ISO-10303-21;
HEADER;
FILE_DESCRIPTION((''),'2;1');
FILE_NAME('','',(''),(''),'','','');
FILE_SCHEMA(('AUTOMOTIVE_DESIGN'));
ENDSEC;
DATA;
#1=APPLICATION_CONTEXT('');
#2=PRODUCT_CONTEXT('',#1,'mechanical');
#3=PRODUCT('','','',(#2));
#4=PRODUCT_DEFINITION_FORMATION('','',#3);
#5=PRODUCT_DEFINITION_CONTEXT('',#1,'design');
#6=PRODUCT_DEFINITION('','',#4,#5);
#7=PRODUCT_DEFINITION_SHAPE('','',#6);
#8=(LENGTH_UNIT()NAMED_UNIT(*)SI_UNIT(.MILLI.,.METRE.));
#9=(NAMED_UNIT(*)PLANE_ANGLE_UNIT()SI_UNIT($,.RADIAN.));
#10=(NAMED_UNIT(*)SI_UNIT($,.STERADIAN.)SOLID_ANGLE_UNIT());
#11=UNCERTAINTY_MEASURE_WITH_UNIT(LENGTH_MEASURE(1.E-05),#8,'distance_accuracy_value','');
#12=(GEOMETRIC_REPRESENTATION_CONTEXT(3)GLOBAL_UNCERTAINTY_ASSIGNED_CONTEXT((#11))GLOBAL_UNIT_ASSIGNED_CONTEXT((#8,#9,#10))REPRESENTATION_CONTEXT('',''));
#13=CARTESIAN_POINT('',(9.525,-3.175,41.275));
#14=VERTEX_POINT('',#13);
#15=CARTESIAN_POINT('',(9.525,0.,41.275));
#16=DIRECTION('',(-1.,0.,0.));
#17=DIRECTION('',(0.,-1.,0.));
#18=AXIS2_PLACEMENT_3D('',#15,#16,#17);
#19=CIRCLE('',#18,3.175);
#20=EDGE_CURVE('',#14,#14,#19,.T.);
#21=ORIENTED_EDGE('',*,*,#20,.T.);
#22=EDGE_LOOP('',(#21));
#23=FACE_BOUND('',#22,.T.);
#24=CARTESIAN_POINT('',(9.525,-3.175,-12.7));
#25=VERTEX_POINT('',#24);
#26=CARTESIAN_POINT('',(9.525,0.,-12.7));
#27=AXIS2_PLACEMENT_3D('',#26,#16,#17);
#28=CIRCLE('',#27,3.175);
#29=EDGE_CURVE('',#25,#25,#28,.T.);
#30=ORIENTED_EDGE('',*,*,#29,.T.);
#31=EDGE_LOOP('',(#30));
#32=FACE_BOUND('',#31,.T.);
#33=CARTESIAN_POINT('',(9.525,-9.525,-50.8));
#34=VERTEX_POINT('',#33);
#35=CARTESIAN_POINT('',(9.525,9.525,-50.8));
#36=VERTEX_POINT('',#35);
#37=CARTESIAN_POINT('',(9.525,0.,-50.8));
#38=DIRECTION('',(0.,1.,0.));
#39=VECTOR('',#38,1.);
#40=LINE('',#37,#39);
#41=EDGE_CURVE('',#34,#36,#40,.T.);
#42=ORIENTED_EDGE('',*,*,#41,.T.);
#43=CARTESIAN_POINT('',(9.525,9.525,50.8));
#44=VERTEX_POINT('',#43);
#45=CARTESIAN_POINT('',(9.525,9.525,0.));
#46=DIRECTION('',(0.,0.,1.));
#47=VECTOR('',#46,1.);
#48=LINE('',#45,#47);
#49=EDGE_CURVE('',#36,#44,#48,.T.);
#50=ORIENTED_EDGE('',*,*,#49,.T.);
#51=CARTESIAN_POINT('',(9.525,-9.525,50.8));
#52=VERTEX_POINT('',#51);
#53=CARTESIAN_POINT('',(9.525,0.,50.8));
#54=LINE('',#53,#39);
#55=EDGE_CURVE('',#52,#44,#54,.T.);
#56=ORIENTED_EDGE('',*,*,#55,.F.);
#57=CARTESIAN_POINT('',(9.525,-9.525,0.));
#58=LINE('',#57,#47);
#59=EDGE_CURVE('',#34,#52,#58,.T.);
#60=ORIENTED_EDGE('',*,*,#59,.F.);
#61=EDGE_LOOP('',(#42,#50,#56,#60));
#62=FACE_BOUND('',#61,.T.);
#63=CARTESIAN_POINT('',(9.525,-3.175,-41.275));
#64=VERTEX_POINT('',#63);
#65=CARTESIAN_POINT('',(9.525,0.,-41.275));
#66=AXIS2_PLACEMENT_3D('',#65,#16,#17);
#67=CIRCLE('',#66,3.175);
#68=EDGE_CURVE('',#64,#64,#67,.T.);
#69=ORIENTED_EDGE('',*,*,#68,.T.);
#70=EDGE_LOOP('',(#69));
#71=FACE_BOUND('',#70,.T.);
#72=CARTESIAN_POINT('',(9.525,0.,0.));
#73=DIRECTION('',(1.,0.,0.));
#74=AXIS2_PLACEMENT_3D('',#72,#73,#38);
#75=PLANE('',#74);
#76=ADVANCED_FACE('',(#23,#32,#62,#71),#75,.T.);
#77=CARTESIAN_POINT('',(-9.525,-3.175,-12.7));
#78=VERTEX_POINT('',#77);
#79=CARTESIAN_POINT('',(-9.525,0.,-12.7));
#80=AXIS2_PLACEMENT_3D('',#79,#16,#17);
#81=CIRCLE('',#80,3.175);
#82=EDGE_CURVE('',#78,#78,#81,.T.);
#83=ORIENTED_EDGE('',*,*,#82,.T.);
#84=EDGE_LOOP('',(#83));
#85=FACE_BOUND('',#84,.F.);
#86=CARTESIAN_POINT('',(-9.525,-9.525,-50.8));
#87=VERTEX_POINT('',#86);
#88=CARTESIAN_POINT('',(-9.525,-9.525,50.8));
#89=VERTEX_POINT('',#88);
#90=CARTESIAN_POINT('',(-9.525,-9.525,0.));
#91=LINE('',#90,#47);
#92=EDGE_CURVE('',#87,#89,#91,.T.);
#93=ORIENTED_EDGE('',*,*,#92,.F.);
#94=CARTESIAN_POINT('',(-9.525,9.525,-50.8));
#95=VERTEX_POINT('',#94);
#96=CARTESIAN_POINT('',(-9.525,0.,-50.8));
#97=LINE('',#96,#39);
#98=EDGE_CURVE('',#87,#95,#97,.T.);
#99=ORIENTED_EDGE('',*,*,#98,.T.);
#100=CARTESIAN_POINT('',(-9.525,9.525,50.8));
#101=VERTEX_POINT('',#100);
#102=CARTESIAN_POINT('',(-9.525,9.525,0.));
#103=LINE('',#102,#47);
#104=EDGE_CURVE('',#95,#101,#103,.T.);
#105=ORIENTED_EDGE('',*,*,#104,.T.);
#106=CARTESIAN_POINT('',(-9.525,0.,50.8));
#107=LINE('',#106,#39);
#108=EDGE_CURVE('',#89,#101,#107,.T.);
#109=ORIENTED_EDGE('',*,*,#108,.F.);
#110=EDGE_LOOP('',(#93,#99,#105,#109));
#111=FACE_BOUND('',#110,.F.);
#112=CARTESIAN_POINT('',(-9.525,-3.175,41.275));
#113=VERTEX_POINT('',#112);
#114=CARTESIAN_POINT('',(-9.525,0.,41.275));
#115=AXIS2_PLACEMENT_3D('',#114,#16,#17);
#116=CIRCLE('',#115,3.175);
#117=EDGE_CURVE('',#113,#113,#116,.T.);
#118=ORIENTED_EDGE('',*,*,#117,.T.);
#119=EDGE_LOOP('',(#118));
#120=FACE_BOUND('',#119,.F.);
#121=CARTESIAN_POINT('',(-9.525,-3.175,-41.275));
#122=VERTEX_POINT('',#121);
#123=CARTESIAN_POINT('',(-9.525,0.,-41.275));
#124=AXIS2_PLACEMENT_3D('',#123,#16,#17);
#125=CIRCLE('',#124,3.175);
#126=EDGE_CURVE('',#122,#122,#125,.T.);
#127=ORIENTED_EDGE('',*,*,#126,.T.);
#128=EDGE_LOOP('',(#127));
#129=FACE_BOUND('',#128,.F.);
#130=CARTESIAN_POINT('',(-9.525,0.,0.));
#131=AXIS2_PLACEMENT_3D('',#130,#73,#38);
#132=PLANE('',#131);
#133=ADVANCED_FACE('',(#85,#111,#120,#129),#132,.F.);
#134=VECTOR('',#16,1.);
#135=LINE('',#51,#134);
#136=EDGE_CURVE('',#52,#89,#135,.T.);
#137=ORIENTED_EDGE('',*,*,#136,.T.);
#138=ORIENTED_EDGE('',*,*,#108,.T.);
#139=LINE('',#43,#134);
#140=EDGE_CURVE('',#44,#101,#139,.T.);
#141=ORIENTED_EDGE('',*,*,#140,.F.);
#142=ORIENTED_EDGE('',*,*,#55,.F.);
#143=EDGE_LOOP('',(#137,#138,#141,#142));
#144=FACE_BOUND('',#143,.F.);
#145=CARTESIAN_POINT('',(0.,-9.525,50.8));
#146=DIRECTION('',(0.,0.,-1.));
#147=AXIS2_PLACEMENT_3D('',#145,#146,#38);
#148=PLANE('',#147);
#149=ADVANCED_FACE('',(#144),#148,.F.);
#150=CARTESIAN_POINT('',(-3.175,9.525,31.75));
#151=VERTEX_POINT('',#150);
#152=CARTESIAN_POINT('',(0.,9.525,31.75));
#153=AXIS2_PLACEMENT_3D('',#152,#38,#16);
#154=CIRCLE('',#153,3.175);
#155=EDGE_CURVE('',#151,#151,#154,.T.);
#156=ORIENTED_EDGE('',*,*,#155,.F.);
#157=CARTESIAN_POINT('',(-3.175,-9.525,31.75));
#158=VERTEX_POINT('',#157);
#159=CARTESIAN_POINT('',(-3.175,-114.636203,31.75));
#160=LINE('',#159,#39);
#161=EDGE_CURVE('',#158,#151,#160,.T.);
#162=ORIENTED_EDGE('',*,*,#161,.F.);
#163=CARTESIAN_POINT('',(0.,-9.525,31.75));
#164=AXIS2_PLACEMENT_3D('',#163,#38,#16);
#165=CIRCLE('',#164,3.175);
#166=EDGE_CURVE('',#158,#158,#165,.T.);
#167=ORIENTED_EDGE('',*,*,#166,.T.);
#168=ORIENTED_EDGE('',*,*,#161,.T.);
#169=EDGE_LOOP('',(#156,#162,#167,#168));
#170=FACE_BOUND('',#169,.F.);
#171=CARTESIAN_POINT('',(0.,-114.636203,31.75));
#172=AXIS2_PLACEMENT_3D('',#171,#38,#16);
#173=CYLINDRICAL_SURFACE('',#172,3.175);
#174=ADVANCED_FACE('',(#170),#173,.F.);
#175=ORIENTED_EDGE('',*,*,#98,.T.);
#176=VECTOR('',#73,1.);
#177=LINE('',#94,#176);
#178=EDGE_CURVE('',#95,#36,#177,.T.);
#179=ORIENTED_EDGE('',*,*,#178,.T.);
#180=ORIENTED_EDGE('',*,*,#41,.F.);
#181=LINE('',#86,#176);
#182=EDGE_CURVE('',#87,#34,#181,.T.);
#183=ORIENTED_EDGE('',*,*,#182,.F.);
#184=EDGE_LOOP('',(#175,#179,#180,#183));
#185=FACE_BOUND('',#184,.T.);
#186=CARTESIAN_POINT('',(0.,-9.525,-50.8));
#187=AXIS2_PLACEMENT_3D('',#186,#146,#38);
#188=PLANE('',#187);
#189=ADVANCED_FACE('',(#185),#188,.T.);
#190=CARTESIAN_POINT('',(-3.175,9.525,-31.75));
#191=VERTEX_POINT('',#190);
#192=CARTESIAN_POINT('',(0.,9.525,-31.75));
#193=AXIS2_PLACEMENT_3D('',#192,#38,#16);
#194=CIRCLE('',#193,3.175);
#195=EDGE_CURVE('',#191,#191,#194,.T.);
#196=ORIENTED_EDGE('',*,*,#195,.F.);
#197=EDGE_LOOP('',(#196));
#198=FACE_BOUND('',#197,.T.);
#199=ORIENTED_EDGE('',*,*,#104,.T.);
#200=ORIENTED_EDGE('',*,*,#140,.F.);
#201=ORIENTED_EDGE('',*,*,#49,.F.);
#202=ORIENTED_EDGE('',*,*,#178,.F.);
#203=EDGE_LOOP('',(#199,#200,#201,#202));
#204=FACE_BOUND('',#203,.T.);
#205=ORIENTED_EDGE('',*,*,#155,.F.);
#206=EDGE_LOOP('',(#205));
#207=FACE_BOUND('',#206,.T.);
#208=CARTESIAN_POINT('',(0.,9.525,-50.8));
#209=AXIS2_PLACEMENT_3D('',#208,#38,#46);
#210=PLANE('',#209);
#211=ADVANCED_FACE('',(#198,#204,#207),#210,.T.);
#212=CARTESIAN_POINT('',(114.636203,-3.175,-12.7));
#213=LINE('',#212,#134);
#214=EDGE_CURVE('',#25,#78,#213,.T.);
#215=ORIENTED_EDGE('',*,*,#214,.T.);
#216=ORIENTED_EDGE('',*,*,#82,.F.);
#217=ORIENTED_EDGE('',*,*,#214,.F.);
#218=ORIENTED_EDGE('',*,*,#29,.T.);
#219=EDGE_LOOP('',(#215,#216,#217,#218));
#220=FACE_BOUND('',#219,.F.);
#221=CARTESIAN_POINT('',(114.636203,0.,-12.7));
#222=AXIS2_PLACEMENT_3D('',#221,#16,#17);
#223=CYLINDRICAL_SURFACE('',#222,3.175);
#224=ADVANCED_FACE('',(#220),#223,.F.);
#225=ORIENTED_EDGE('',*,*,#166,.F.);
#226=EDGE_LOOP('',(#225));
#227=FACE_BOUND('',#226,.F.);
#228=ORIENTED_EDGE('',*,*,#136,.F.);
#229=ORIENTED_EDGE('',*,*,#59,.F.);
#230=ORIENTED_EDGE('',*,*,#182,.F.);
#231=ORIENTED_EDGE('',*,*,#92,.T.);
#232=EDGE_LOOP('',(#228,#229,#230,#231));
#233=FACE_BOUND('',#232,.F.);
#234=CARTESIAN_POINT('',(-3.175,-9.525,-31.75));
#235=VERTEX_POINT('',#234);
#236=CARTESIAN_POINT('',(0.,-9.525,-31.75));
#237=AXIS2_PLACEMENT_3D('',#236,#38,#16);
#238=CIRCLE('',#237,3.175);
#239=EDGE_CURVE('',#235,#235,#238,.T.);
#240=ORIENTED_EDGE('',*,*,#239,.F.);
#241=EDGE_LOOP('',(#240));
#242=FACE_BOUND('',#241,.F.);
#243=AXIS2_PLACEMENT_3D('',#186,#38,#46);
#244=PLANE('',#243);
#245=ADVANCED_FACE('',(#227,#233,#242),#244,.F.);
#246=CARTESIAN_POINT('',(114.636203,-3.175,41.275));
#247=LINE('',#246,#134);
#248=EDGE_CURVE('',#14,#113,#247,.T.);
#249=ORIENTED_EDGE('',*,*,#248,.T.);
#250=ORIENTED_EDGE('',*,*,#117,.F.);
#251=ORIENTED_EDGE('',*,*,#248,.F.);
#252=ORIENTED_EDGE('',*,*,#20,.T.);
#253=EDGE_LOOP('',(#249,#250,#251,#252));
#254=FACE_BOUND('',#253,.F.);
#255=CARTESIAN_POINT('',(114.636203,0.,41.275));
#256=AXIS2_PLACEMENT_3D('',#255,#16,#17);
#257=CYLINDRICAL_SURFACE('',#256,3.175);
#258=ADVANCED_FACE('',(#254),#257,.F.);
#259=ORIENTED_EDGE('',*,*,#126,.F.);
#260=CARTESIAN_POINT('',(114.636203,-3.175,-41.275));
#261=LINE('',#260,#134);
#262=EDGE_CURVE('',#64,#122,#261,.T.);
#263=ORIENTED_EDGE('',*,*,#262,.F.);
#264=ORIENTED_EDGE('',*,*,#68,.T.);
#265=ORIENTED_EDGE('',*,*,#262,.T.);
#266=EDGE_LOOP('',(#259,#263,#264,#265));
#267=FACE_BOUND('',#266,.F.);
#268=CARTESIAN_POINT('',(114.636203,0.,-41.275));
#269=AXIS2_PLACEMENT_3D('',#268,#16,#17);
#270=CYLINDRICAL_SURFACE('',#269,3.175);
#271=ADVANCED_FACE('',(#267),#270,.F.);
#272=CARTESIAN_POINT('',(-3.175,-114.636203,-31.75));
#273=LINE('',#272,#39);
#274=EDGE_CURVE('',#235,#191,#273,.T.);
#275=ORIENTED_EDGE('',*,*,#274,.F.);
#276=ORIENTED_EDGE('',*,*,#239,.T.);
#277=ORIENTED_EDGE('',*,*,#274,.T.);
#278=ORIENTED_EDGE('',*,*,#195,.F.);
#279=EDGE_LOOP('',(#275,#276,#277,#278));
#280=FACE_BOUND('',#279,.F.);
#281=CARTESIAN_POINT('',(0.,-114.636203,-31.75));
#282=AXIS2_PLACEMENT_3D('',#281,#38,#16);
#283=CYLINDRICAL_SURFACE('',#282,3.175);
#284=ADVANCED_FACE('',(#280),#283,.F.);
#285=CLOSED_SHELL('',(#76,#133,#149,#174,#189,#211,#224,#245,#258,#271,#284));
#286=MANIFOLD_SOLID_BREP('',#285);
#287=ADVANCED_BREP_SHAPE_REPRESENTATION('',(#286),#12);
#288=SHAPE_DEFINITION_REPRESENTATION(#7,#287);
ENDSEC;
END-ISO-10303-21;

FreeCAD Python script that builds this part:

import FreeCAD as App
import Part
import Sketcher

V = App.Vector
Q = App.Units.Quantity

doc = App.newDocument("Part")
body = doc.addObject("PartDesign::Body", "Body")

# Sketch on YZ plane
sketch1 = body.newObject("Sketcher::SketchObject", "Sketch")
sketch1.AttachmentSupport = (doc.getObject("YZ_Plane"), [""])
sketch1.MapMode = "FlatFace"
sketch1.addGeometry([
    Part.LineSegment(V(-10, 51, 0), V(-10, -51, 0)),
    Part.LineSegment(V(-10, -51, 0), V(10, -51, 0)),
    Part.LineSegment(V(10, -51, 0), V(10, 51, 0)),
    Part.LineSegment(V(10, 51, 0), V(-10, 51, 0)),
], False)
sketch1.addConstraint([
    Sketcher.Constraint("Coincident", 0, 2, 1, 1),
    Sketcher.Constraint("Coincident", 1, 2, 2, 1),
    Sketcher.Constraint("Coincident", 2, 2, 3, 1),
    Sketcher.Constraint("Coincident", 3, 2, 0, 1),
    Sketcher.Constraint("Vertical", 0),
    Sketcher.Constraint("Horizontal", 1),
    Sketcher.Constraint("Vertical", 2),
    Sketcher.Constraint("Horizontal", 3),
    Sketcher.Constraint("Symmetric", 0, 2, 2, 2, -1, 1),
    Sketcher.Constraint("DistanceY", 0, 2, 0, 1, Q("4 in")),
    Sketcher.Constraint("DistanceX", 1, 1, 1, 2, Q("0.75 in")),
])
pad1 = body.newObject("PartDesign::Pad", "Pad")
pad1.Profile = sketch1
pad1.Length = Q("0.75 in")
pad1.Midplane = True

# Sketch on XZ plane
sketch2 = body.newObject("Sketcher::SketchObject", "Sketch001")
sketch2.AttachmentSupport = (doc.getObject("XZ_Plane"), [""])
sketch2.MapMode = "FlatFace"
sketch2.AttachmentOffset = App.Placement(V(0, 0, 0.375 * 25.4), App.Rotation())
sketch2.addGeometry([
    Part.Circle(V(0, 31.8, 0), V(0, 0, 1), 3.2),
    Part.Circle(V(0, -31.8, 0), V(0, 0, 1), 3.2),
], False)
sketch2.addConstraint([
    Sketcher.Constraint("Equal", 0, 1),
    Sketcher.Constraint("Symmetric", 0, 3, 1, 3, -1, 1),
    Sketcher.Constraint("PointOnObject", 0, 3, -2),
    Sketcher.Constraint("Diameter", 0, Q("0.25 in")),
    Sketcher.Constraint("DistanceY", 1, 3, 0, 3, Q("2.5 in")),
])
doc.recompute()
hole = body.newObject("PartDesign::Hole", "Hole")
hole.Profile = sketch2
hole.ThreadType = "None"
hole.Diameter = Q("0.25 in")
hole.DepthType = "ThroughAll"

# Sketch on YZ plane
sketch3 = body.newObject("Sketcher::SketchObject", "Sketch002")
sketch3.AttachmentSupport = (doc.getObject("YZ_Plane"), [""])
sketch3.MapMode = "FlatFace"
sketch3.AttachmentOffset = App.Placement(V(0, 0, 0.375 * 25.4), App.Rotation())
sketch3.addGeometry([
    Part.Circle(V(0, 41.3, 0), V(0, 0, 1), 3.2),
    Part.Circle(V(0, -41.3, 0), V(0, 0, 1), 3.2),
], False)
sketch3.addConstraint([
    Sketcher.Constraint("Equal", 0, 1),
    Sketcher.Constraint("Symmetric", 0, 3, 1, 3, -1, 1),
    Sketcher.Constraint("PointOnObject", 0, 3, -2),
    Sketcher.Constraint("Diameter", 0, Q("0.25 in")),
    Sketcher.Constraint("DistanceY", 1, 3, 0, 3, Q("3.25 in")),
])
doc.recompute()
hole2 = body.newObject("PartDesign::Hole", "Hole001")
hole2.Profile = sketch3
hole2.ThreadType = "None"
hole2.Diameter = Q("0.25 in")
hole2.DepthType = "ThroughAll"

# Sketch on YZ plane
sketch4 = body.newObject("Sketcher::SketchObject", "Sketch003")
sketch4.AttachmentSupport = (doc.getObject("YZ_Plane"), [""])
sketch4.MapMode = "FlatFace"
sketch4.AttachmentOffset = App.Placement(V(0, 0, 0.375 * 25.4), App.Rotation())
sketch4.addGeometry(Part.Circle(V(0, -12.7, 0), V(0, 0, 1), 3.2), False)
sketch4.addConstraint([
    Sketcher.Constraint("PointOnObject", 0, 3, -2),
    Sketcher.Constraint("Diameter", 0, Q("0.25 in")),
    Sketcher.Constraint("DistanceY", 0, 3, -1, 1, Q("0.5 in")),
])
doc.recompute()
hole3 = body.newObject("PartDesign::Hole", "Hole002")
hole3.Profile = sketch4
hole3.ThreadType = "None"
hole3.Diameter = Q("0.25 in")
hole3.DepthType = "ThroughAll"

doc.recompute()
